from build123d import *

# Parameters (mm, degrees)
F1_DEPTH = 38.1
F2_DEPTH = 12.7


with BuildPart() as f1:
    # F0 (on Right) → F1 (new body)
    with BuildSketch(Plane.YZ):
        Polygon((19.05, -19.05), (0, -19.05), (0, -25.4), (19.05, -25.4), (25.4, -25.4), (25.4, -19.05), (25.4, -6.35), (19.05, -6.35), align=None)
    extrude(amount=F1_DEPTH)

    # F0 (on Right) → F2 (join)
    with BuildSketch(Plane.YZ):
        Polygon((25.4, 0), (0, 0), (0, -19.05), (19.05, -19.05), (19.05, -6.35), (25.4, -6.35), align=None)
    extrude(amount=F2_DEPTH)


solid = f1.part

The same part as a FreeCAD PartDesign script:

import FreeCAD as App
import Part
import Sketcher
Q = App.Units.Quantity


def add_polygon(sketch, points):
    """Adds a closed chain of lines whose ends are joined by coincident constraints."""
    first, n = sketch.GeometryCount, len(points)
    for a, b in zip(points, points[1:] + points[:1]):
        sketch.addGeometry(Part.LineSegment(App.Vector(*a, 0), App.Vector(*b, 0)), False)
    for i in range(n):
        sketch.addConstraint(Sketcher.Constraint("Coincident", first + i, 2, first + (i + 1) % n, 1))

doc = App.newDocument("Part")
body = doc.addObject("PartDesign::Body", "Body")

# Sketch on YZ plane
sketch1 = doc.addObject("Sketcher::SketchObject", "Sketch")
body.addObject(sketch1)
sketch1.AttachmentSupport = (doc.YZ_Plane, [""])
sketch1.MapMode = "FlatFace"
add_polygon(sketch1, [(19.05, -19.05), (0, -19.05), (0, -25.4), (25.4, -25.4), (25.4, -6.35), (19.05, -6.35)])  # lines 0-5
sketch1.addConstraint([
    Sketcher.Constraint("Horizontal", 0),
    Sketcher.Constraint("Vertical", 1),
    Sketcher.Constraint("Horizontal", 2),
    Sketcher.Constraint("Vertical", 3),
    Sketcher.Constraint("Horizontal", 4),
    Sketcher.Constraint("Vertical", 5),
    Sketcher.Constraint("PointOnObject", 0, 2, -2),
    Sketcher.Constraint("Equal", 4, 1),
    Sketcher.Constraint("Equal", 0, 3),
    Sketcher.Constraint("DistanceX", 2, 1, 2, 2, Q("1 in")),
    Sketcher.Constraint("DistanceY", 5, 2, 5, 1, Q("0.5 in")),
    Sketcher.Constraint("DistanceY", 1, 2, -1, 1, Q("1 in")),
])
pad1 = doc.addObject("PartDesign::Pad", "Pad")
body.addObject(pad1)
pad1.Profile = sketch1
pad1.Length = Q("1.5 in")

# Sketch on YZ plane
sketch2 = doc.addObject("Sketcher::SketchObject", "Sketch001")
body.addObject(sketch2)
sketch2.AttachmentSupport = (doc.YZ_Plane, [""])
sketch2.MapMode = "FlatFace"
add_polygon(sketch2, [(25.4, 0), (0, 0), (0, -19.05), (19.05, -19.05), (19.05, -6.35), (25.4, -6.35)])  # lines 0-5
sketch2.addConstraint([
    Sketcher.Constraint("Horizontal", 0),
    Sketcher.Constraint("Vertical", 1),
    Sketcher.Constraint("Horizontal", 2),
    Sketcher.Constraint("Vertical", 3),
    Sketcher.Constraint("Horizontal", 4),
    Sketcher.Constraint("Vertical", 5),
    Sketcher.Constraint("Coincident", 0, 2, -1, 1),
    Sketcher.Constraint("Equal", 2, 1),
    Sketcher.Constraint("Equal", 4, 5),
    Sketcher.Constraint("DistanceX", 0, 2, 0, 1, Q("1 in")),
    Sketcher.Constraint("DistanceY", 3, 1, 3, 2, Q("0.5 in")),
])
pad2 = doc.addObject("PartDesign::Pad", "Pad001")
body.addObject(pad2)
pad2.Profile = sketch2
pad2.Length = Q("0.5 in")

doc.recompute()
